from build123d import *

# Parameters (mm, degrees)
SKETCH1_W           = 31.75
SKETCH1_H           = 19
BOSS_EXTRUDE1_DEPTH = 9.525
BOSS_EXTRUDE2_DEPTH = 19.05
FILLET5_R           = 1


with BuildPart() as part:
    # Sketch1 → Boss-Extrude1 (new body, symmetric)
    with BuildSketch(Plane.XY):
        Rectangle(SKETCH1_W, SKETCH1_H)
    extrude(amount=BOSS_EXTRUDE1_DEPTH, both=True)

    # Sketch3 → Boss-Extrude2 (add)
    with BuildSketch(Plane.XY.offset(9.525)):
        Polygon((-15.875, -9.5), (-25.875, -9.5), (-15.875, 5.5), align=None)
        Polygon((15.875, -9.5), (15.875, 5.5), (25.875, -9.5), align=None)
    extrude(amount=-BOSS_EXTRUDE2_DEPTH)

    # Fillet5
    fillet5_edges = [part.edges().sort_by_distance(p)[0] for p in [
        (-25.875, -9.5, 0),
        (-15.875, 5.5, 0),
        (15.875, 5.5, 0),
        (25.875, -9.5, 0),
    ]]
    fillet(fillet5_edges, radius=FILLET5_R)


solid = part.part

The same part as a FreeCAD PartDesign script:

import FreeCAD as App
import Part
import Sketcher

V = App.Vector


def edges_at(feature, points):
    """Names of the edges that pass closest to the given points."""
    edges = feature.Shape.Edges
    near = lambda p: min(range(len(edges)), key=lambda i: edges[i].distToShape(Part.Vertex(*p))[0])
    return sorted({f"Edge{near(p) + 1}" for p in points})


def add_polygon(sketch, points):
    """Adds a closed chain of lines whose ends are joined by coincident constraints."""
    first, n = sketch.GeometryCount, len(points)
    for a, b in zip(points, points[1:] + points[:1]):
        sketch.addGeometry(Part.LineSegment(App.Vector(*a, 0), App.Vector(*b, 0)), False)
    for i in range(n):
        sketch.addConstraint(Sketcher.Constraint("Coincident", first + i, 2, first + (i + 1) % n, 1))

doc = App.newDocument("Part")
body = doc.addObject("PartDesign::Body", "Body")

# Sketch on XY plane
sketch1 = body.newObject("Sketcher::SketchObject", "Sketch")
sketch1.AttachmentSupport = (doc.getObject("XY_Plane"), [""])
sketch1.MapMode = "FlatFace"
add_polygon(sketch1, [(-16, 10), (-16, -10), (16, -10), (16, 10)])  # lines 0-3
sketch1.addConstraint([
    Sketcher.Constraint("Vertical", 0),
    Sketcher.Constraint("Horizontal", 1),
    Sketcher.Constraint("Vertical", 2),
    Sketcher.Constraint("Horizontal", 3),
    Sketcher.Constraint("Symmetric", 0, 2, 2, 2, -1, 1),
    Sketcher.Constraint("DistanceY", 0, 2, 0, 1, 19.0),
    Sketcher.Constraint("DistanceX", 1, 1, 1, 2, 31.75),
])
pad1 = body.newObject("PartDesign::Pad", "Pad")
pad1.Profile = sketch1
pad1.Length = 19.05
pad1.Midplane = True

# Sketch on XY plane
sketch2 = body.newObject("Sketcher::SketchObject", "Sketch001")
sketch2.AttachmentSupport = (doc.getObject("XY_Plane"), [""])
sketch2.MapMode = "FlatFace"
sketch2.AttachmentOffset = App.Placement(V(0, 0, 9.525), App.Rotation())
add_polygon(sketch2, [(-26, -10), (-16, -10), (-16, 6)])  # lines 0-2
add_polygon(sketch2, [(16, 6), (16, -10), (26, -10)])  # lines 3-5
sketch2.addConstraint([
    Sketcher.Constraint("Horizontal", 0),
    Sketcher.Constraint("Vertical", 1),
    Sketcher.Constraint("Vertical", 3),
    Sketcher.Constraint("Horizontal", 4),
    Sketcher.Constraint("Symmetric", 0, 2, 3, 2, -2),
    Sketcher.Constraint("Horizontal", 1, 2, 5, 2),
    Sketcher.Constraint("Equal", 0, 4),
    Sketcher.Constraint("DistanceX", 0, 1, 0, 2, 10.0),
    Sketcher.Constraint("DistanceY", 1, 1, 1, 2, 15.0),
    Sketcher.Constraint("DistanceY", 0, 2, -1, 1, 9.5),
    Sketcher.Constraint("DistanceX", 0, 2, 3, 2, 31.75),
])
pad2 = body.newObject("PartDesign::Pad", "Pad001")
pad2.Profile = sketch2
pad2.Length = 19.05
pad2.Reversed = True
doc.recompute()

fillet = body.newObject("PartDesign::Fillet", "Fillet")
fillet.Base = (pad2, edges_at(pad2, [
    (-25.875, -9.5, 0),
    (-15.875, 5.5, 0),
    (15.875, 5.5, 0),
    (25.875, -9.5, 0),
]))
fillet.Radius = 1

doc.recompute()
